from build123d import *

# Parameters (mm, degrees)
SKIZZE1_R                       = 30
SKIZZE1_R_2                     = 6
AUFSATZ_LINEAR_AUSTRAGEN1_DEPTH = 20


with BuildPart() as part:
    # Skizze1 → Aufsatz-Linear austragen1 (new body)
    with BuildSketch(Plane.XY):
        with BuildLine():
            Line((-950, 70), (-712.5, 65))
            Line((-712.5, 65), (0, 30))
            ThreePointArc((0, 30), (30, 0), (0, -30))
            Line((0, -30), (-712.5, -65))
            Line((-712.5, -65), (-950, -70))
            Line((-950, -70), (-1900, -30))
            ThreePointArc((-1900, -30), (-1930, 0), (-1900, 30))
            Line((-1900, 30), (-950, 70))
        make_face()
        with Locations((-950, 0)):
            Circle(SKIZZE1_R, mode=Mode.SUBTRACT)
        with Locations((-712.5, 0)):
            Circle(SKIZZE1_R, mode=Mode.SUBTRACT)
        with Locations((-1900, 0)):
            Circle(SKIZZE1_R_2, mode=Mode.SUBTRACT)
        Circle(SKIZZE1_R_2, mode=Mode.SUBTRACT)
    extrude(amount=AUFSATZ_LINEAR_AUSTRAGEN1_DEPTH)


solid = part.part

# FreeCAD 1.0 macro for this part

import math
import FreeCAD as App
import Part
import Sketcher

V = App.Vector
Q = App.Units.Quantity

doc = App.newDocument("Part")
body = doc.addObject("PartDesign::Body", "Body")

# Sketch on XY plane
sketch1 = body.newObject("Sketcher::SketchObject", "Sketch")
sketch1.AttachmentSupport = (doc.getObject("XY_Plane"), [""])
sketch1.MapMode = "FlatFace"
sketch1.addGeometry([
    Part.LineSegment(V(-712, 65, 0), V(-950, 70, 0)),  # 0
    Part.LineSegment(V(-950, 70, 0), V(-1900, 30, 0)),  # 1
    Part.ArcOfCircle(Part.Circle(V(-1900, 0, 0), V(0, 0, 1), 30), math.radians(90), math.radians(270)),  # 2
    Part.LineSegment(V(-1900, -30, 0), V(-950, -70, 0)),  # 3
    Part.LineSegment(V(-950, -70, 0), V(-712, -65, 0)),  # 4
    Part.LineSegment(V(-712, -65, 0), V(0, -30, 0)),  # 5
    Part.ArcOfCircle(Part.Circle(V(0, 0, 0), V(0, 0, 1), 30), math.radians(-90), math.radians(90)),  # 6
    Part.LineSegment(V(0, 30, 0), V(-712, 65, 0)),  # 7
    Part.Circle(V(0, 0, 0), V(0, 0, 1), 6),  # 8
    Part.Circle(V(-712, 0, 0), V(0, 0, 1), 30),  # 9
    Part.Circle(V(-950, 0, 0), V(0, 0, 1), 30),  # 10
    Part.Circle(V(-1900, 0, 0), V(0, 0, 1), 6),  # 11
], False)
sketch1.addConstraint([
    Sketcher.Constraint("Coincident", 0, 2, 1, 1),
    Sketcher.Constraint("Coincident", 1, 2, 2, 1),
    Sketcher.Constraint("Coincident", 2, 2, 3, 1),
    Sketcher.Constraint("Coincident", 3, 2, 4, 1),
    Sketcher.Constraint("Coincident", 4, 2, 5, 1),
    Sketcher.Constraint("Coincident", 5, 2, 6, 1),
    Sketcher.Constraint("Coincident", 6, 2, 7, 1),
    Sketcher.Constraint("Coincident", 7, 2, 0, 1),
    Sketcher.Constraint("Coincident", 6, 3, -1, 1),
    Sketcher.Constraint("Coincident", 8, 3, -1, 1),
    Sketcher.Constraint("Coincident", 11, 3, 2, 3),
    Sketcher.Constraint("Equal", 2, 6),
    Sketcher.Constraint("Equal", 6, 9),
    Sketcher.Constraint("Equal", 9, 10),
    Sketcher.Constraint("Equal", 8, 11),
    Sketcher.Constraint("Symmetric", 1, 2, 2, 2, -1),
    Sketcher.Constraint("Symmetric", 0, 2, 3, 2, -1),
    Sketcher.Constraint("Symmetric", 4, 2, 7, 2, -1),
    Sketcher.Constraint("PointOnObject", 9, 3, -1),
    Sketcher.Constraint("PointOnObject", 10, 3, -1),
    Sketcher.Constraint("PointOnObject", 5, 2, -2),
    Sketcher.Constraint("PointOnObject", 6, 2, -2),
    Sketcher.Constraint("Vertical", 10, 3, 0, 2),
    Sketcher.Constraint("Vertical", 11, 3, 1, 2),
    Sketcher.Constraint("Vertical", 9, 3, 4, 2),
    Sketcher.Constraint("Diameter", 8, Q("12 mm")),
    Sketcher.Constraint("Diameter", 9, Q("60 mm")),
    Sketcher.Constraint("DistanceX", 2, 3, -1, 1, Q("1900 mm")),
    Sketcher.Constraint("DistanceX", 10, 3, -1, 1, Q("950 mm")),
    Sketcher.Constraint("DistanceY", -1, 1, 0, 2, Q("70 mm")),
    Sketcher.Constraint("DistanceY", 4, 2, -1, 1, Q("65 mm")),
    Sketcher.Constraint("DistanceX", 9, 3, -1, 1, Q("712.5 mm")),
])
pad1 = body.newObject("PartDesign::Pad", "Pad")
pad1.Profile = sketch1
pad1.Length = 20

doc.recompute()
